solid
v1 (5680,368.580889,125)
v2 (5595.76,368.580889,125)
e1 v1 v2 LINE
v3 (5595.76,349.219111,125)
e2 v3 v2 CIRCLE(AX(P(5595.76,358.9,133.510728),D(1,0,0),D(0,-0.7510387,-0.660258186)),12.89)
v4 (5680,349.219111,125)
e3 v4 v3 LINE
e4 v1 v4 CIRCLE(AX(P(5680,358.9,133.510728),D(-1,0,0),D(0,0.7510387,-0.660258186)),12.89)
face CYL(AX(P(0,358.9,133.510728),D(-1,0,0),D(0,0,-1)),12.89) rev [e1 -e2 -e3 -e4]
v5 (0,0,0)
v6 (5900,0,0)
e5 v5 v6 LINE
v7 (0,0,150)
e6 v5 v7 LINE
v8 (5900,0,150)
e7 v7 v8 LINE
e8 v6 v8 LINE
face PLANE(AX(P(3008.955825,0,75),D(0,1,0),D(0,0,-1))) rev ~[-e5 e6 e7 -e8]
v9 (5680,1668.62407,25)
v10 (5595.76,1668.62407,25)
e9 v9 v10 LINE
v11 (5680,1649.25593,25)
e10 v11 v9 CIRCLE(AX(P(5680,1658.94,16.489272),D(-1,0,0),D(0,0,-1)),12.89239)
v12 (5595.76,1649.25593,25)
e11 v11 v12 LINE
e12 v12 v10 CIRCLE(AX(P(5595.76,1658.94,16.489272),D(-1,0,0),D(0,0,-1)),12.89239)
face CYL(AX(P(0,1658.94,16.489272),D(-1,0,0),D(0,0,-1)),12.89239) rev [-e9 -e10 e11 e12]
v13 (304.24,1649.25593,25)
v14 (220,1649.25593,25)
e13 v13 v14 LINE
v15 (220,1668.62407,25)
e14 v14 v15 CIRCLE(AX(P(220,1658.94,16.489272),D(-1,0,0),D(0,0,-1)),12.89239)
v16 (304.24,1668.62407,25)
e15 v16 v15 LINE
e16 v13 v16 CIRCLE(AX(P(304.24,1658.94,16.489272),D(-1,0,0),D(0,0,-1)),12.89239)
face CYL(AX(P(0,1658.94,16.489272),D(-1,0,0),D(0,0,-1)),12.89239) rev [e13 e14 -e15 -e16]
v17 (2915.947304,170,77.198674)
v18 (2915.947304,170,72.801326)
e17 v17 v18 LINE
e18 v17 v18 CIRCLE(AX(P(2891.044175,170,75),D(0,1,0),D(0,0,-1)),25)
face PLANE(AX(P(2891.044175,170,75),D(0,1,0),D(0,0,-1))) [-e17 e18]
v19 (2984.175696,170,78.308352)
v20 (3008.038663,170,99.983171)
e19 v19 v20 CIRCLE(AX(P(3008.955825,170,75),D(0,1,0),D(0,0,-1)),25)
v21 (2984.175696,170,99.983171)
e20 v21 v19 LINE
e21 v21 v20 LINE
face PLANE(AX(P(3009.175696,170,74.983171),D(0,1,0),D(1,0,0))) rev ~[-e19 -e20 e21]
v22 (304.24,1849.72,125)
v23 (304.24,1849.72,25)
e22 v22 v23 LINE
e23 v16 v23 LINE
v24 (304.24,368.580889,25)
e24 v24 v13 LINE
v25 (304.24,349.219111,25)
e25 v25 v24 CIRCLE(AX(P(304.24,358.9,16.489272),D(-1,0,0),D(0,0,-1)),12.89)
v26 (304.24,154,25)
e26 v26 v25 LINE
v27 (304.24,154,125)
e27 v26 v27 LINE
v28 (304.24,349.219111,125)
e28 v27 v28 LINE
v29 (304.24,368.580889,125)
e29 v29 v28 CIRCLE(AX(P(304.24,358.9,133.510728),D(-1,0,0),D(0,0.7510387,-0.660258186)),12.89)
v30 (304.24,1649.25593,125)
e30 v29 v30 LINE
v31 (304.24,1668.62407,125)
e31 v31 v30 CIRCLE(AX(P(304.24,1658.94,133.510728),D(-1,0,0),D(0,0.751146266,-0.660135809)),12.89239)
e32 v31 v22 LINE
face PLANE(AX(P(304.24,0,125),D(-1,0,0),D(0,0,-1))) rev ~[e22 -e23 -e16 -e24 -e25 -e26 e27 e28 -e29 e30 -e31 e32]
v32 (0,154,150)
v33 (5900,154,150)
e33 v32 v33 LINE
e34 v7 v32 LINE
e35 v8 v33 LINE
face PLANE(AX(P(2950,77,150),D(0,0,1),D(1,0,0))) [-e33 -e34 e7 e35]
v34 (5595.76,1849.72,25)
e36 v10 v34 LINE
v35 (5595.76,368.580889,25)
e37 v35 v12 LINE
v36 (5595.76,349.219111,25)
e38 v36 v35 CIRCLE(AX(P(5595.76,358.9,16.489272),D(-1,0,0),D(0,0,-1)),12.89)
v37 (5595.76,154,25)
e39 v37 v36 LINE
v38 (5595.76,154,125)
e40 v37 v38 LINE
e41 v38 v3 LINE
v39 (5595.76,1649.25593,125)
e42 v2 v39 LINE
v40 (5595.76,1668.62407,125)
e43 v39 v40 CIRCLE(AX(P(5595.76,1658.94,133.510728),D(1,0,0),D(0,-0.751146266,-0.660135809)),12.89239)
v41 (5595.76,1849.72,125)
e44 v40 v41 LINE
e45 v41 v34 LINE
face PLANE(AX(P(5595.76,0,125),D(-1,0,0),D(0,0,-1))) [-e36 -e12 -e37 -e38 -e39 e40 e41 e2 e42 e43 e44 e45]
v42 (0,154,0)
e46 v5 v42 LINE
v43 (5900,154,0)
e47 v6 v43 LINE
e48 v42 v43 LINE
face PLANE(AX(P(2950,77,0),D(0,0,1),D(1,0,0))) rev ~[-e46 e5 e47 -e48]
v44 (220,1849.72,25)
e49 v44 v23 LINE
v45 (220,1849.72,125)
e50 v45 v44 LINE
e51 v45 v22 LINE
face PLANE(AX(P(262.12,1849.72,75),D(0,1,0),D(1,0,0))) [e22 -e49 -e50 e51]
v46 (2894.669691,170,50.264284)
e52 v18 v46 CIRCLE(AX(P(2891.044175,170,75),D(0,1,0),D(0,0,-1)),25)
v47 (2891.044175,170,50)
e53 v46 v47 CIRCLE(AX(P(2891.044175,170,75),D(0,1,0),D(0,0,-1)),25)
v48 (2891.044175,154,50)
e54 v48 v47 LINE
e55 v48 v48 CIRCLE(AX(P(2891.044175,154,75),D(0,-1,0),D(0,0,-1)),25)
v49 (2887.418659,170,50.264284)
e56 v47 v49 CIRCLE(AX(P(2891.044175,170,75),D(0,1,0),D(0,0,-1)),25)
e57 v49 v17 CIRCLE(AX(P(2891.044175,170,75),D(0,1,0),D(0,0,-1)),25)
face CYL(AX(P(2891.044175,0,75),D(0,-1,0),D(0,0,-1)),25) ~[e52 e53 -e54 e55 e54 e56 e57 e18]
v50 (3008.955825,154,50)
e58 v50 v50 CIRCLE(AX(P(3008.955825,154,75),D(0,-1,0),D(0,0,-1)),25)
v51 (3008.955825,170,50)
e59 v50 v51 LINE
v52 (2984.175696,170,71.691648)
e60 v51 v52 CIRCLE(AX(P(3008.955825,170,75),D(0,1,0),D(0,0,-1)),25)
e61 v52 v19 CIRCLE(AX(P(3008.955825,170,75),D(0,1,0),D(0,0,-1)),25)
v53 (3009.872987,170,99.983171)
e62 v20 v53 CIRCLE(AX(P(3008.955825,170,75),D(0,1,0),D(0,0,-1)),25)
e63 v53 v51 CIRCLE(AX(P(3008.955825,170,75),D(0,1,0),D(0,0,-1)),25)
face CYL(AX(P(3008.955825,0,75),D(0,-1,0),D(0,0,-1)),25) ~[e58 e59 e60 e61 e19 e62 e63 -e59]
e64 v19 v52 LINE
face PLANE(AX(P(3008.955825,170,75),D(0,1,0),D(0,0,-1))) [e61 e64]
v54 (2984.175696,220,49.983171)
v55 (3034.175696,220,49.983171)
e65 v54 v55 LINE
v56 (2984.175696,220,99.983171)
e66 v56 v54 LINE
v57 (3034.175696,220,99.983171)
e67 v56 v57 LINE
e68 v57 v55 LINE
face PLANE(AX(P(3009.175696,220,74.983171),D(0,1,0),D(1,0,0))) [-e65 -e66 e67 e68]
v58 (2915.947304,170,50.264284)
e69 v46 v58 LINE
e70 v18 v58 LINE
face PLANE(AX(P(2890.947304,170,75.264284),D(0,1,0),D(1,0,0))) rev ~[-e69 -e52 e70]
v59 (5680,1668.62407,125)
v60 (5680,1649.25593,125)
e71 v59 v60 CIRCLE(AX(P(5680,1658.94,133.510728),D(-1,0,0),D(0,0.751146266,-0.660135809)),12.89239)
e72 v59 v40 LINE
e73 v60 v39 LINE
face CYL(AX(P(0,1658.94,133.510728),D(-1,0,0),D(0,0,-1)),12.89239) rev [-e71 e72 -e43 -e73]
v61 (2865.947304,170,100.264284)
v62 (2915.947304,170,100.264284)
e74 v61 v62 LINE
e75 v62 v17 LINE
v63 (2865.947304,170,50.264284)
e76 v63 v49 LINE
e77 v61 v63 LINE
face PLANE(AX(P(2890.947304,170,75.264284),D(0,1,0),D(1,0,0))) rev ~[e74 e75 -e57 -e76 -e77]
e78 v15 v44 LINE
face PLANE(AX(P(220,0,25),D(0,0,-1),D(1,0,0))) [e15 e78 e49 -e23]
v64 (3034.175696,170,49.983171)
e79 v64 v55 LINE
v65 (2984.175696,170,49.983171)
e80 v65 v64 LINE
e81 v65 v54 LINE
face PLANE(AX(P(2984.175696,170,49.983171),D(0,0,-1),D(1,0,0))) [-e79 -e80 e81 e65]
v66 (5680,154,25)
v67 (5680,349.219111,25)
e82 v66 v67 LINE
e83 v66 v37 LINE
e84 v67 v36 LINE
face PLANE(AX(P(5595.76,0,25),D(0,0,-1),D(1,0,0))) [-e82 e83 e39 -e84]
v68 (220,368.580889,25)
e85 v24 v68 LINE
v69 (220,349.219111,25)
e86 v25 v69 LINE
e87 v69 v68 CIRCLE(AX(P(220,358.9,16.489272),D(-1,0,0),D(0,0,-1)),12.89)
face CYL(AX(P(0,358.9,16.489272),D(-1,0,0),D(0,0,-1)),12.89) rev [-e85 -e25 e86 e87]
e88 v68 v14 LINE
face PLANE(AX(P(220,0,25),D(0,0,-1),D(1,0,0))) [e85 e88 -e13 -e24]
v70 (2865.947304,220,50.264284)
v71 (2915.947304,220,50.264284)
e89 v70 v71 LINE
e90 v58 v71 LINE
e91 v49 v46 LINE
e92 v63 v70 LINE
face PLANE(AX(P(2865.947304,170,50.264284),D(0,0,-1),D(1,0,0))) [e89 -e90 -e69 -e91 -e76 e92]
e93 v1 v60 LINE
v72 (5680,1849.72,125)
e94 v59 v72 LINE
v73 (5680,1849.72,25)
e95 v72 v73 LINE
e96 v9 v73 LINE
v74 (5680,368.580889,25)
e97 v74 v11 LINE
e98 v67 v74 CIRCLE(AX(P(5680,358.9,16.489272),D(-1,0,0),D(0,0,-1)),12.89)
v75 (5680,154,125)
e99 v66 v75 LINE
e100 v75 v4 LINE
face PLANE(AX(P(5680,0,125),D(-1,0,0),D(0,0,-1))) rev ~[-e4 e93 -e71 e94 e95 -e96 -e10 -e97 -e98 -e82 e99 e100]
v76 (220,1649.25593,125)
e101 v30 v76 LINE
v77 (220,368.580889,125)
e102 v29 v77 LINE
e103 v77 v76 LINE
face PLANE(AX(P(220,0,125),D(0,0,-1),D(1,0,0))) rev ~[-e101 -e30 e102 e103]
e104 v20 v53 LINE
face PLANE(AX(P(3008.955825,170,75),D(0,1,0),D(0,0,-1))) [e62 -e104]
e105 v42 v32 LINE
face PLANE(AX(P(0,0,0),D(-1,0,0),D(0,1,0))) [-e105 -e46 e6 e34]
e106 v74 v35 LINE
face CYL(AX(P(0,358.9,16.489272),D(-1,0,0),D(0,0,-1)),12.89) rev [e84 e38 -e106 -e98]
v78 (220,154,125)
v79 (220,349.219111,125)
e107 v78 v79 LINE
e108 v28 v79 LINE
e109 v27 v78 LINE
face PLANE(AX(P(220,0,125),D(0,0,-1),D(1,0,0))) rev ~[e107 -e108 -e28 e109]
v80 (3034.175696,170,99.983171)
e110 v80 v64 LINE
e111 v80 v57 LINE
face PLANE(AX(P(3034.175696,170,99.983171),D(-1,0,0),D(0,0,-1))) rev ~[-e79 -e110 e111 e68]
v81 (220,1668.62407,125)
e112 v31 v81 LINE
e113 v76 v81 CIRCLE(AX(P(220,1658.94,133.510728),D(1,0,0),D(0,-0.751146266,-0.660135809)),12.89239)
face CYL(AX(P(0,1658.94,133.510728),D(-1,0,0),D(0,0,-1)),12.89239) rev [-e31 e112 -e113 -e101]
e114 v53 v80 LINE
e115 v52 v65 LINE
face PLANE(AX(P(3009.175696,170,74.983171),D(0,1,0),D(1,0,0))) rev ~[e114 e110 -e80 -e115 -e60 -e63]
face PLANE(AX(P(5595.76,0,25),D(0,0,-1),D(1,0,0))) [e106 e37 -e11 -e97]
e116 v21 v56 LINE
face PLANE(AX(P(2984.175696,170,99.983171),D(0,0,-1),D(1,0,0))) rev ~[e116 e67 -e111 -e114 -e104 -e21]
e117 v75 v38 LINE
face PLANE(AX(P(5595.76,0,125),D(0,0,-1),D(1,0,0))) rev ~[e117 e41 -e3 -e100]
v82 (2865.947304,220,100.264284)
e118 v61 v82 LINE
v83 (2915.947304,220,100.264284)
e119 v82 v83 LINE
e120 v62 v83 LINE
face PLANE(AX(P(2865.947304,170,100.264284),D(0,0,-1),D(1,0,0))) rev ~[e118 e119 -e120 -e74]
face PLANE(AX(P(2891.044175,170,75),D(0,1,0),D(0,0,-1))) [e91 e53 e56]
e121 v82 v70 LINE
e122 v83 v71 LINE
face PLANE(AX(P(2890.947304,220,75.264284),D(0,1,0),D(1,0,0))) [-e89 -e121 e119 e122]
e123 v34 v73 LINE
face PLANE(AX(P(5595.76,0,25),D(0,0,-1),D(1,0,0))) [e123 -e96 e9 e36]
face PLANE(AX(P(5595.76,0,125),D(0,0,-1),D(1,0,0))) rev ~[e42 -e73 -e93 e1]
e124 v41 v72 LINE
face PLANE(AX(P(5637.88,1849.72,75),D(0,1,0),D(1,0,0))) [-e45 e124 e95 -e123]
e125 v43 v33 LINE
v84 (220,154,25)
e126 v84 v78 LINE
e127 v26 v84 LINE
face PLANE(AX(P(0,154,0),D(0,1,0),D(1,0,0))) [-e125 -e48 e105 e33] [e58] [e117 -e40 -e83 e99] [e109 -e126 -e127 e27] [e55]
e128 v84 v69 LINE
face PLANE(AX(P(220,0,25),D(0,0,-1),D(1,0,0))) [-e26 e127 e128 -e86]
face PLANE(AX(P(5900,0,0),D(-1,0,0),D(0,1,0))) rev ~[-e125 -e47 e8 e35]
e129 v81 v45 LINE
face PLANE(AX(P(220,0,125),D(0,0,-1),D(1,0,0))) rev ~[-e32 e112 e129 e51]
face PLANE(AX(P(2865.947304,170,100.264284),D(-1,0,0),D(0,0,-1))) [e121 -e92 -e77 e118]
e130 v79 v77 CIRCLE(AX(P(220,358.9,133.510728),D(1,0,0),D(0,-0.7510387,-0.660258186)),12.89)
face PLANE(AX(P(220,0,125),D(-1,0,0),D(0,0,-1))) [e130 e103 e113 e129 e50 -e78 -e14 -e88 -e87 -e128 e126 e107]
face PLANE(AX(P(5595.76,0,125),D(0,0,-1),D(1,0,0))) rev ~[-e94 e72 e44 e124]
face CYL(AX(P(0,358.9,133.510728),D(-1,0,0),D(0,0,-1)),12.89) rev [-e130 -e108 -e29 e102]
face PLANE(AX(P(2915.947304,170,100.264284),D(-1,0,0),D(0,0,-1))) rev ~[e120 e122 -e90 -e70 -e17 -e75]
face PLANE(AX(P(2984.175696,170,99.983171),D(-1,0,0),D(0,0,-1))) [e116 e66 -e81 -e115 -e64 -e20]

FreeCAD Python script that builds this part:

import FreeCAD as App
import Part
import Sketcher

V = App.Vector
Q = App.Units.Quantity


def add_polygon(sketch, points):
    """Adds a closed chain of lines whose ends are joined by coincident constraints."""
    first, n = sketch.GeometryCount, len(points)
    for a, b in zip(points, points[1:] + points[:1]):
        sketch.addGeometry(Part.LineSegment(App.Vector(*a, 0), App.Vector(*b, 0)), False)
    for i in range(n):
        sketch.addConstraint(Sketcher.Constraint("Coincident", first + i, 2, first + (i + 1) % n, 1))

doc = App.newDocument("Part")
body = doc.addObject("PartDesign::Body", "Body")

# Sketch on XY plane
sketch1 = doc.addObject("Sketcher::SketchObject", "Sketch")
body.addObject(sketch1)
sketch1.AttachmentSupport = (doc.XY_Plane, [""])
sketch1.MapMode = "FlatFace"
add_polygon(sketch1, [(0, 154), (0, 0), (5900, 0), (5900, 154)])  # lines 0-3
sketch1.addConstraint([
    Sketcher.Constraint("Vertical", 0),
    Sketcher.Constraint("Horizontal", 1),
    Sketcher.Constraint("Vertical", 2),
    Sketcher.Constraint("Horizontal", 3),
    Sketcher.Constraint("Coincident", 0, 2, -1, 1),
    Sketcher.Constraint("DistanceX", 1, 1, 1, 2, Q("5900 mm")),
    Sketcher.Constraint("DistanceY", 0, 2, 0, 1, Q("154 mm")),
])
pad1 = doc.addObject("PartDesign::Pad", "Pad")
body.addObject(pad1)
pad1.Profile = sketch1
pad1.Length = 150

# Sketch on XZ plane
sketch2 = doc.addObject("Sketcher::SketchObject", "Sketch001")
body.addObject(sketch2)
sketch2.AttachmentSupport = (doc.XZ_Plane, [""])
sketch2.MapMode = "FlatFace"
add_polygon(sketch2, [(5596, 25), (5596, 125), (5680, 125), (5680, 25)])  # lines 0-3
add_polygon(sketch2, [(220, 25), (220, 125), (304, 125), (304, 25)])  # lines 4-7
sketch2.addConstraint([
    Sketcher.Constraint("Vertical", 0),
    Sketcher.Constraint("Horizontal", 1),
    Sketcher.Constraint("Vertical", 2),
    Sketcher.Constraint("Horizontal", 3),
    Sketcher.Constraint("Vertical", 4),
    Sketcher.Constraint("Horizontal", 5),
    Sketcher.Constraint("Vertical", 6),
    Sketcher.Constraint("Horizontal", 7),
    Sketcher.Constraint("Horizontal", 1, 2, 4, 2),
    Sketcher.Constraint("Horizontal", 3, 2, 6, 2),
    Sketcher.Constraint("Equal", 3, 5),
    Sketcher.Constraint("DistanceY", 0, 1, 0, 2, Q("100 mm")),
    Sketcher.Constraint("DistanceY", -1, 1, 0, 2, Q("125 mm")),
    Sketcher.Constraint("DistanceX", -1, 1, 1, 2, Q("5680 mm")),
    Sketcher.Constraint("DistanceX", -1, 1, 4, 2, Q("220 mm")),
    Sketcher.Constraint("DistanceX", 1, 1, 1, 2, Q("84.24 mm")),
])
pad2 = doc.addObject("PartDesign::Pad", "Pad001")
body.addObject(pad2)
pad2.Profile = sketch2
pad2.Length = 1849.72
pad2.Reversed = True

# Sketch on YZ plane
sketch3 = doc.addObject("Sketcher::SketchObject", "Sketch002")
body.addObject(sketch3)
sketch3.AttachmentSupport = (doc.YZ_Plane, [""])
sketch3.MapMode = "FlatFace"
sketch3.addGeometry([
    Part.Circle(V(1659, 16, 0), V(0, 0, 1), 13),
    Part.Circle(V(1659, 134, 0), V(0, 0, 1), 13),
    Part.Circle(V(359, 16, 0), V(0, 0, 1), 13),
    Part.Circle(V(359, 134, 0), V(0, 0, 1), 13),
], False)
sketch3.addConstraint([
    Sketcher.Constraint("Equal", 0, 1),
    Sketcher.Constraint("Equal", 2, 3),
    Sketcher.Constraint("Horizontal", 0, 3, 2, 3),
    Sketcher.Constraint("Horizontal", 1, 3, 3, 3),
    Sketcher.Constraint("Vertical", 0, 3, 1, 3),
    Sketcher.Constraint("Vertical", 2, 3, 3, 3),
    Sketcher.Constraint("Diameter", 2, Q("25.78 mm")),
    Sketcher.Constraint("DistanceX", -1, 1, 2, 3, Q("358.9 mm")),
    Sketcher.Constraint("Diameter", 0, Q("25.784779 mm")),
    Sketcher.Constraint("DistanceX", -1, 1, 0, 3, Q("1658.94 mm")),
    Sketcher.Constraint("DistanceY", -1, 1, 0, 3, Q("16.489272 mm")),
    Sketcher.Constraint("DistanceY", -1, 1, 1, 3, Q("133.510728 mm")),
])
pocket1 = doc.addObject("PartDesign::Pocket", "Pocket")
body.addObject(pocket1)
pocket1.Profile = sketch3
pocket1.Type = "ThroughAll"
pocket1.Reversed = True

# Sketch on XZ plane
sketch4 = doc.addObject("Sketcher::SketchObject", "Sketch003")
body.addObject(sketch4)
sketch4.AttachmentSupport = (doc.XZ_Plane, [""])
sketch4.MapMode = "FlatFace"
sketch4.addGeometry([
    Part.Circle(V(3009, 75, 0), V(0, 0, 1), 25),
    Part.Circle(V(2891, 75, 0), V(0, 0, 1), 25),
], False)
sketch4.addConstraint([
    Sketcher.Constraint("Equal", 0, 1),
    Sketcher.Constraint("Horizontal", 0, 3, 1, 3),
    Sketcher.Constraint("Diameter", 0, Q("50 mm")),
    Sketcher.Constraint("DistanceY", -1, 1, 0, 3, Q("75 mm")),
    Sketcher.Constraint("DistanceX", 1, 3, 0, 3, Q("117.91165 mm")),
    Sketcher.Constraint("DistanceX", -1, 1, 0, 3, Q("3008.955825 mm")),
])
pad3 = doc.addObject("PartDesign::Pad", "Pad002")
body.addObject(pad3)
pad3.Profile = sketch4
pad3.Length = 170
pad3.Reversed = True

# Sketch on XZ plane
sketch5 = doc.addObject("Sketcher::SketchObject", "Sketch004")
body.addObject(sketch5)
sketch5.AttachmentSupport = (doc.XZ_Plane, [""])
sketch5.MapMode = "FlatFace"
sketch5.AttachmentOffset = App.Placement(V(0, 0, -170), App.Rotation())
add_polygon(sketch5, [(2984, 50), (2984, 100), (3034, 100), (3034, 50)])  # lines 0-3
add_polygon(sketch5, [(2866, 50), (2866, 100), (2916, 100), (2916, 50)])  # lines 4-7
sketch5.addConstraint([
    Sketcher.Constraint("Vertical", 0),
    Sketcher.Constraint("Horizontal", 1),
    Sketcher.Constraint("Vertical", 2),
    Sketcher.Constraint("Horizontal", 3),
    Sketcher.Constraint("Vertical", 4),
    Sketcher.Constraint("Horizontal", 5),
    Sketcher.Constraint("Vertical", 6),
    Sketcher.Constraint("Horizontal", 7),
    Sketcher.Constraint("Equal", 3, 5),
    Sketcher.Constraint("Equal", 7, 0),
    Sketcher.Constraint("Equal", 2, 4),
    Sketcher.Constraint("DistanceX", 1, 1, 1, 2, Q("50 mm")),
    Sketcher.Constraint("DistanceY", -1, 1, 0, 2, Q("99.983171 mm")),
    Sketcher.Constraint("DistanceX", 4, 2, 0, 2, Q("118.228392 mm")),
    Sketcher.Constraint("DistanceX", -1, 1, 0, 2, Q("2984.175696 mm")),
    Sketcher.Constraint("DistanceY", -1, 1, 4, 2, Q("100.264284 mm")),
])
pad4 = doc.addObject("PartDesign::Pad", "Pad003")
body.addObject(pad4)
pad4.Profile = sketch5
pad4.Length = 50
pad4.Reversed = True

doc.recompute()
